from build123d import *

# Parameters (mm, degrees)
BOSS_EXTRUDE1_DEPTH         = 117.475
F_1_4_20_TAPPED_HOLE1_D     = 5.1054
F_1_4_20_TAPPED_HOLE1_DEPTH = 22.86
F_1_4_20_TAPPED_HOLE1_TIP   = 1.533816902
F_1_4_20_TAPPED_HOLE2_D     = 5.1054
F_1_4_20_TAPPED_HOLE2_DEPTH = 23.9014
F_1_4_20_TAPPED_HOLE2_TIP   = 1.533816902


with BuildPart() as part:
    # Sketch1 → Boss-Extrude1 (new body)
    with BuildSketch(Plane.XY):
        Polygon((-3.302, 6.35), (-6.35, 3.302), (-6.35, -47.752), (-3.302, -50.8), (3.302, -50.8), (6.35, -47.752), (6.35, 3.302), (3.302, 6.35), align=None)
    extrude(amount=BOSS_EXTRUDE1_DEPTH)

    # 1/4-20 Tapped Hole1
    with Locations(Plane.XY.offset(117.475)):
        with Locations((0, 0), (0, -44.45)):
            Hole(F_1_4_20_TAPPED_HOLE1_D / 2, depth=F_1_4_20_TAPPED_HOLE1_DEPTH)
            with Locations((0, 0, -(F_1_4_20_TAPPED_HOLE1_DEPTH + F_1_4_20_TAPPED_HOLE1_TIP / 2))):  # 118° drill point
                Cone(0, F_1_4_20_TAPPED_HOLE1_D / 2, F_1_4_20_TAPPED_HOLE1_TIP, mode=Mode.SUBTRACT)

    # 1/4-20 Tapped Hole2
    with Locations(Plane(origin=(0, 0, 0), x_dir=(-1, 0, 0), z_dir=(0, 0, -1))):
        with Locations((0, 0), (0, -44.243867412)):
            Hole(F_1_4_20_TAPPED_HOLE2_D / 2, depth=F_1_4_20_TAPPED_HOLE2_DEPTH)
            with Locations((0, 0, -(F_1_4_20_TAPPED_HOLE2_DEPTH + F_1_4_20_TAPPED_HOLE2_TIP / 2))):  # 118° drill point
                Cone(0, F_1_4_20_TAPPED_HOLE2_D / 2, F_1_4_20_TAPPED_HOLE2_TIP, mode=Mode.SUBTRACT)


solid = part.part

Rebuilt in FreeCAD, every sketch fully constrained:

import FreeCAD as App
import Part
import Sketcher
from FreeCAD import Vector
Q = App.Units.Quantity

doc = App.newDocument("Part")
params = doc.addObject("Spreadsheet::Sheet", "Params")
for row, (alias, value) in enumerate([
    ("sketch1_width", "0.26 in"),
    ("sketch1_height", "2.01 in"),
    ("pad1_length", "4.625 in"),
    ("sketch2_diameter", "0.201 in"),
    ("hole_diameter", "0.201 in"),
    ("hole_depth", "0.9 in"),
    ("sketch3_diameter", "0.201 in"),
    ("hole2_diameter", "0.201 in"),
    ("hole2_depth", "0.941 in"),
], start=1):
    params.set(f"A{row}", alias)
    params.set(f"B{row}", "=" + value)
    params.setAlias(f"B{row}", alias)

body = doc.addObject("PartDesign::Body", "Body")

# Sketch on XY plane
sketch1 = doc.addObject("Sketcher::SketchObject", "Sketch")
body.addObject(sketch1)
sketch1.AttachmentSupport = (doc.XY_Plane, [""])
sketch1.MapMode = "FlatFace"
sketch1.addGeometry([
    Part.LineSegment(Vector(-3.302, 6.35, 0), Vector(-6.35, 3.302, 0)),  # 0
    Part.LineSegment(Vector(-6.35, 3.302, 0), Vector(-6.35, -47.752, 0)),  # 1
    Part.LineSegment(Vector(-6.35, -47.752, 0), Vector(-3.302, -50.8, 0)),  # 2
    Part.LineSegment(Vector(-3.302, -50.8, 0), Vector(3.302, -50.8, 0)),  # 3
    Part.LineSegment(Vector(3.302, -50.8, 0), Vector(6.35, -47.752, 0)),  # 4
    Part.LineSegment(Vector(6.35, -47.752, 0), Vector(6.35, 3.302, 0)),  # 5
    Part.LineSegment(Vector(6.35, 3.302, 0), Vector(3.302, 6.35, 0)),  # 6
    Part.LineSegment(Vector(3.302, 6.35, 0), Vector(-3.302, 6.35, 0)),  # 7
], False)
sketch1.addConstraint([
    Sketcher.Constraint("Coincident", 0, 2, 1, 1),
    Sketcher.Constraint("Coincident", 1, 2, 2, 1),
    Sketcher.Constraint("Coincident", 2, 2, 3, 1),
    Sketcher.Constraint("Coincident", 3, 2, 4, 1),
    Sketcher.Constraint("Coincident", 4, 2, 5, 1),
    Sketcher.Constraint("Coincident", 5, 2, 6, 1),
    Sketcher.Constraint("Coincident", 6, 2, 7, 1),
    Sketcher.Constraint("Coincident", 7, 2, 0, 1),
    Sketcher.Constraint("Vertical", 1),
    Sketcher.Constraint("Horizontal", 3),
    Sketcher.Constraint("Vertical", 5),
    Sketcher.Constraint("Horizontal", 7),
    Sketcher.Constraint("Symmetric", 1, 2, 4, 2, -2),
    Sketcher.Constraint("Perpendicular", 0, 2),
    Sketcher.Constraint("Perpendicular", 2, 4),
    Sketcher.Constraint("Perpendicular", 4, 6),
    Sketcher.Constraint("Horizontal", 0, 2, 5, 2),
    Sketcher.Constraint("Vertical", 3, 2, 6, 2),
    Sketcher.Constraint("Vertical", 2, 2, 7, 2),
    Sketcher.Constraint("DistanceY", 2, 2, -1, 1, Q("2 in")),
    Sketcher.Constraint("DistanceX", 3, 1, 3, 2, Q("0.26 in")),
    Sketcher.Constraint("DistanceY", 1, 2, 1, 1, Q("2.01 in")),
    Sketcher.Constraint("DistanceX", 1, 2, 4, 2, Q("0.5 in")),
])
sketch1.setExpression("Constraints[20]", "Params.sketch1_width")
sketch1.setExpression("Constraints[21]", "Params.sketch1_height")
pad1 = doc.addObject("PartDesign::Pad", "Pad")
body.addObject(pad1)
pad1.Profile = sketch1
pad1.setExpression("Length", "Params.pad1_length")

# Sketch on XY plane
sketch2 = doc.addObject("Sketcher::SketchObject", "Sketch001")
body.addObject(sketch2)
sketch2.AttachmentSupport = (doc.XY_Plane, [""])
sketch2.MapMode = "FlatFace"
sketch2.AttachmentOffset = App.Placement(Vector(0, 0, 4.625 * 25.4), App.Rotation())
sketch2.addGeometry([
    Part.Circle(Vector(0, 0, 0), Vector(0, 0, 1), 2.5527),
    Part.Circle(Vector(0, -44.45, 0), Vector(0, 0, 1), 2.5527),
], False)
sketch2.addConstraint([
    Sketcher.Constraint("Coincident", 0, 3, -1, 1),
    Sketcher.Constraint("Equal", 0, 1),
    Sketcher.Constraint("PointOnObject", 1, 3, -2),
    Sketcher.Constraint("Diameter", 0, Q("0.201 in")),
    Sketcher.Constraint("DistanceY", 1, 3, -1, 1, Q("1.75 in")),
])
sketch2.setExpression("Constraints[3]", "Params.sketch2_diameter")
doc.recompute()
hole = doc.addObject("PartDesign::Hole", "Hole")
body.addObject(hole)
hole.Profile = sketch2
hole.ThreadType = "None"
hole.setExpression("Diameter", "Params.hole_diameter")
hole.DepthType = "Dimension"
hole.setExpression("Depth", "Params.hole_depth")
hole.DrillPoint = "Angled"
hole.DrillPointAngle = 118

# Sketch on XY plane
sketch3 = doc.addObject("Sketcher::SketchObject", "Sketch002")
body.addObject(sketch3)
sketch3.AttachmentSupport = (doc.XY_Plane, [""])
sketch3.MapMode = "FlatFace"
sketch3.addGeometry([
    Part.Circle(Vector(0, 0, 0), Vector(0, 0, 1), 2.5527),
    Part.Circle(Vector(0, -44.243867, 0), Vector(0, 0, 1), 2.5527),
], False)
sketch3.addConstraint([
    Sketcher.Constraint("Coincident", 0, 3, -1, 1),
    Sketcher.Constraint("Equal", 0, 1),
    Sketcher.Constraint("PointOnObject", 1, 3, -2),
    Sketcher.Constraint("Diameter", 0, Q("0.201 in")),
    Sketcher.Constraint("DistanceY", 1, 3, -1, 1, Q("44.243867 mm")),
])
sketch3.setExpression("Constraints[3]", "Params.sketch3_diameter")
doc.recompute()
hole2 = doc.addObject("PartDesign::Hole", "Hole001")
body.addObject(hole2)
hole2.Profile = sketch3
hole2.ThreadType = "None"
hole2.setExpression("Diameter", "Params.hole2_diameter")
hole2.DepthType = "Dimension"
hole2.setExpression("Depth", "Params.hole2_depth")
hole2.DrillPoint = "Angled"
hole2.DrillPointAngle = 118
hole2.Reversed = True

doc.recompute()
